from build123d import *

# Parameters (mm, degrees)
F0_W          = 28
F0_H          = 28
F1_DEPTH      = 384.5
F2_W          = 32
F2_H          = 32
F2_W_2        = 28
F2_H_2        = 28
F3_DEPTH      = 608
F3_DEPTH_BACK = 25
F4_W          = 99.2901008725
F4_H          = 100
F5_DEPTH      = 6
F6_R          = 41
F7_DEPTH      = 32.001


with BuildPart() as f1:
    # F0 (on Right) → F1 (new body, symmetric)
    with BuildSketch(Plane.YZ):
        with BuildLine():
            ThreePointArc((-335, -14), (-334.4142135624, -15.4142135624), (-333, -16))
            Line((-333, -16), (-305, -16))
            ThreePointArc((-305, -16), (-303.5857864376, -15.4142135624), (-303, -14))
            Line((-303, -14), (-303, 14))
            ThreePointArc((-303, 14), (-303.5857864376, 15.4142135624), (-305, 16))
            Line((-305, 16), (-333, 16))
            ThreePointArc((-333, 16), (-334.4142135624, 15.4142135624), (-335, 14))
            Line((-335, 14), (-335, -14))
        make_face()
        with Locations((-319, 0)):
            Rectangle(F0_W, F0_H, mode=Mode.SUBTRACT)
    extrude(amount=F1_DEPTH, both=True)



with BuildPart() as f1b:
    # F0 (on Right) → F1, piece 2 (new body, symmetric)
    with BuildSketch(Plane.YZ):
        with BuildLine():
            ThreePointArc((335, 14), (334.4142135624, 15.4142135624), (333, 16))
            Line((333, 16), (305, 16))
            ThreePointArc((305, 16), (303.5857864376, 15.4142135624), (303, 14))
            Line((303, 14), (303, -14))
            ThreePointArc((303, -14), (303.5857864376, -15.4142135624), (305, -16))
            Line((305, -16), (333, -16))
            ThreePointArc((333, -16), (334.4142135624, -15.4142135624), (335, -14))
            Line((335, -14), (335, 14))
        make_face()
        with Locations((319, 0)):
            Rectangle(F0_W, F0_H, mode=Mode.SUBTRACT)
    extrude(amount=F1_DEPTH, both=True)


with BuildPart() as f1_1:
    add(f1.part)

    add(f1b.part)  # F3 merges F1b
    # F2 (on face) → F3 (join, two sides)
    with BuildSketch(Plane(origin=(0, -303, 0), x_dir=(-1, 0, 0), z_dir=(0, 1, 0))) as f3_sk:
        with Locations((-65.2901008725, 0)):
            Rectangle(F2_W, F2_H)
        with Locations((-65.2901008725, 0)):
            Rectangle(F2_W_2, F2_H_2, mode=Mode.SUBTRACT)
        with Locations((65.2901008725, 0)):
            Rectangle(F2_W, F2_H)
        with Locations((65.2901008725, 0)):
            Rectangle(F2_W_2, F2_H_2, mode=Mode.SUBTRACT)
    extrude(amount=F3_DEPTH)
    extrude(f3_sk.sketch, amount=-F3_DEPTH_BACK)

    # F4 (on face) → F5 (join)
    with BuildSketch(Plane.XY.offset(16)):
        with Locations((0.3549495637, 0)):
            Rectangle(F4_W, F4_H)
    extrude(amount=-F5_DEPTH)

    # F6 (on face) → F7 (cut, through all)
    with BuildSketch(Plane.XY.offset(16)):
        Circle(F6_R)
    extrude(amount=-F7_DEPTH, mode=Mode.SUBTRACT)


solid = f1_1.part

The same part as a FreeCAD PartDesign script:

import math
import FreeCAD as App
import Part
import Sketcher

V = App.Vector
Q = App.Units.Quantity

doc = App.newDocument("Part")
body = doc.addObject("PartDesign::Body", "Body")

sketch1 = body.newObject("Sketcher::SketchObject", "Sketch")
sketch1.AttachmentSupport = (doc.getObject("YZ_Plane"), [""])
sketch1.MapMode = "FlatFace"
sketch1.addGeometry([
    Part.ArcOfCircle(Part.Circle(V(-333, -14, 0), V(0, 0, 1), 2), math.radians(180), math.radians(270)),
    Part.LineSegment(V(-333, -16, 0), V(-305, -16, 0)),
    Part.ArcOfCircle(Part.Circle(V(-305, -14, 0), V(0, 0, 1), 2), math.radians(-90), math.radians(0)),
    Part.LineSegment(V(-303, -14, 0), V(-303, 14, 0)),
    Part.ArcOfCircle(Part.Circle(V(-305, 14, 0), V(0, 0, 1), 2), math.radians(0), math.radians(90)),
    Part.LineSegment(V(-305, 16, 0), V(-333, 16, 0)),
    Part.ArcOfCircle(Part.Circle(V(-333, 14, 0), V(0, 0, 1), 2), math.radians(90), math.radians(180)),
    Part.LineSegment(V(-335, 14, 0), V(-335, -14, 0)),
    Part.LineSegment(V(-305, -14, 0), V(-333, -14, 0)),
    Part.LineSegment(V(-333, -14, 0), V(-333, 14, 0)),
    Part.LineSegment(V(-333, 14, 0), V(-305, 14, 0)),
    Part.LineSegment(V(-305, 14, 0), V(-305, -14, 0)),
], False)
sketch1.addConstraint([
    Sketcher.Constraint("Tangent", 0, 2, 1, 1),
    Sketcher.Constraint("Tangent", 1, 2, 2, 1),
    Sketcher.Constraint("Tangent", 2, 2, 3, 1),
    Sketcher.Constraint("Tangent", 3, 2, 4, 1),
    Sketcher.Constraint("Tangent", 4, 2, 5, 1),
    Sketcher.Constraint("Tangent", 5, 2, 6, 1),
    Sketcher.Constraint("Tangent", 6, 2, 7, 1),
    Sketcher.Constraint("Tangent", 7, 2, 0, 1),
    Sketcher.Constraint("Coincident", 8, 2, 9, 1),
    Sketcher.Constraint("Coincident", 9, 2, 10, 1),
    Sketcher.Constraint("Coincident", 10, 2, 11, 1),
    Sketcher.Constraint("Coincident", 11, 2, 8, 1),
    Sketcher.Constraint("Horizontal", 1),
    Sketcher.Constraint("Vertical", 3),
    Sketcher.Constraint("Horizontal", 5),
    Sketcher.Constraint("Vertical", 7),
    Sketcher.Constraint("Horizontal", 8),
    Sketcher.Constraint("Vertical", 9),
    Sketcher.Constraint("Horizontal", 10),
    Sketcher.Constraint("Vertical", 11),
    Sketcher.Constraint("Coincident", 8, 2, 0, 3),
    Sketcher.Constraint("Coincident", 9, 2, 6, 3),
    Sketcher.Constraint("Coincident", 10, 2, 4, 3),
    Sketcher.Constraint("Equal", 0, 2),
    Sketcher.Constraint("Equal", 10, 3),
    Sketcher.Constraint("Radius", 0, Q("2 mm")),
    Sketcher.Constraint("DistanceX", 1, 1, 1, 2, Q("28 mm")),
    Sketcher.Constraint("DistanceX", 0, 3, -1, 1, Q("333 mm")),
    Sketcher.Constraint("DistanceY", 0, 3, -1, 1, Q("14 mm")),
])
pad1 = body.newObject("PartDesign::Pad", "Pad")
pad1.Profile = sketch1
pad1.Length = 769
pad1.Midplane = True
body2 = doc.addObject("PartDesign::Body", "Body001")

sketch2 = body2.newObject("Sketcher::SketchObject", "Sketch001")
sketch2.AttachmentSupport = (doc.getObject("YZ_Plane001"), [""])
sketch2.MapMode = "FlatFace"
sketch2.addGeometry([
    Part.ArcOfCircle(Part.Circle(V(333, 14, 0), V(0, 0, 1), 2), math.radians(0), math.radians(90)),
    Part.LineSegment(V(333, 16, 0), V(305, 16, 0)),
    Part.ArcOfCircle(Part.Circle(V(305, 14, 0), V(0, 0, 1), 2), math.radians(90), math.radians(180)),
    Part.LineSegment(V(303, 14, 0), V(303, -14, 0)),
    Part.ArcOfCircle(Part.Circle(V(305, -14, 0), V(0, 0, 1), 2), math.radians(180), math.radians(270)),
    Part.LineSegment(V(305, -16, 0), V(333, -16, 0)),
    Part.ArcOfCircle(Part.Circle(V(333, -14, 0), V(0, 0, 1), 2), math.radians(-90), math.radians(0)),
    Part.LineSegment(V(335, -14, 0), V(335, 14, 0)),
    Part.LineSegment(V(333, -14, 0), V(305, -14, 0)),
    Part.LineSegment(V(305, -14, 0), V(305, 14, 0)),
    Part.LineSegment(V(305, 14, 0), V(333, 14, 0)),
    Part.LineSegment(V(333, 14, 0), V(333, -14, 0)),
], False)
sketch2.addConstraint([
    Sketcher.Constraint("Tangent", 0, 2, 1, 1),
    Sketcher.Constraint("Tangent", 1, 2, 2, 1),
    Sketcher.Constraint("Tangent", 2, 2, 3, 1),
    Sketcher.Constraint("Tangent", 3, 2, 4, 1),
    Sketcher.Constraint("Tangent", 4, 2, 5, 1),
    Sketcher.Constraint("Tangent", 5, 2, 6, 1),
    Sketcher.Constraint("Tangent", 6, 2, 7, 1),
    Sketcher.Constraint("Tangent", 7, 2, 0, 1),
    Sketcher.Constraint("Coincident", 8, 2, 9, 1),
    Sketcher.Constraint("Coincident", 9, 2, 10, 1),
    Sketcher.Constraint("Coincident", 10, 2, 11, 1),
    Sketcher.Constraint("Coincident", 11, 2, 8, 1),
    Sketcher.Constraint("Horizontal", 1),
    Sketcher.Constraint("Vertical", 3),
    Sketcher.Constraint("Horizontal", 5),
    Sketcher.Constraint("Vertical", 7),
    Sketcher.Constraint("Horizontal", 8),
    Sketcher.Constraint("Vertical", 9),
    Sketcher.Constraint("Horizontal", 10),
    Sketcher.Constraint("Vertical", 11),
    Sketcher.Constraint("Coincident", 8, 2, 4, 3),
    Sketcher.Constraint("Coincident", 9, 2, 2, 3),
    Sketcher.Constraint("Coincident", 10, 2, 0, 3),
    Sketcher.Constraint("Equal", 4, 6),
    Sketcher.Constraint("Equal", 10, 3),
    Sketcher.Constraint("Radius", 0, Q("2 mm")),
    Sketcher.Constraint("DistanceX", 1, 2, 1, 1, Q("28 mm")),
    Sketcher.Constraint("DistanceX", -1, 1, 0, 3, Q("333 mm")),
    Sketcher.Constraint("DistanceY", -1, 1, 0, 3, Q("14 mm")),
])
pad2 = body2.newObject("PartDesign::Pad", "Pad001")
pad2.Profile = sketch2
pad2.Length = 769
pad2.Midplane = True
body.AllowCompound = True
doc.recompute()

boolean = body.newObject("PartDesign::Boolean", "Boolean")
boolean.Type = "Fuse"
boolean.addObjects([body2])

sketch3 = body.newObject("Sketcher::SketchObject", "Sketch002")
sketch3.AttachmentSupport = (doc.getObject("XZ_Plane"), [""])
sketch3.MapMode = "FlatFace"
sketch3.AttachmentOffset = App.Placement(V(0, 0, 303), App.Rotation())
sketch3.addGeometry([
    Part.LineSegment(V(81.290101, 16, 0), V(81.290101, -16, 0)),
    Part.LineSegment(V(81.290101, -16, 0), V(49.290101, -16, 0)),
    Part.LineSegment(V(49.290101, -16, 0), V(49.290101, 16, 0)),
    Part.LineSegment(V(49.290101, 16, 0), V(81.290101, 16, 0)),
    Part.LineSegment(V(51.290101, -14, 0), V(79.290101, -14, 0)),
    Part.LineSegment(V(79.290101, -14, 0), V(79.290101, 14, 0)),
    Part.LineSegment(V(79.290101, 14, 0), V(51.290101, 14, 0)),
    Part.LineSegment(V(51.290101, 14, 0), V(51.290101, -14, 0)),
    Part.LineSegment(V(-49.290101, 16, 0), V(-49.290101, -16, 0)),
    Part.LineSegment(V(-49.290101, -16, 0), V(-81.290101, -16, 0)),
    Part.LineSegment(V(-81.290101, -16, 0), V(-81.290101, 16, 0)),
    Part.LineSegment(V(-81.290101, 16, 0), V(-49.290101, 16, 0)),
    Part.LineSegment(V(-79.290101, -14, 0), V(-51.290101, -14, 0)),
    Part.LineSegment(V(-51.290101, -14, 0), V(-51.290101, 14, 0)),
    Part.LineSegment(V(-51.290101, 14, 0), V(-79.290101, 14, 0)),
    Part.LineSegment(V(-79.290101, 14, 0), V(-79.290101, -14, 0)),
], False)
sketch3.addConstraint([
    Sketcher.Constraint("Coincident", 0, 2, 1, 1),
    Sketcher.Constraint("Coincident", 1, 2, 2, 1),
    Sketcher.Constraint("Coincident", 2, 2, 3, 1),
    Sketcher.Constraint("Coincident", 3, 2, 0, 1),
    Sketcher.Constraint("Coincident", 4, 2, 5, 1),
    Sketcher.Constraint("Coincident", 5, 2, 6, 1),
    Sketcher.Constraint("Coincident", 6, 2, 7, 1),
    Sketcher.Constraint("Coincident", 7, 2, 4, 1),
    Sketcher.Constraint("Coincident", 8, 2, 9, 1),
    Sketcher.Constraint("Coincident", 9, 2, 10, 1),
    Sketcher.Constraint("Coincident", 10, 2, 11, 1),
    Sketcher.Constraint("Coincident", 11, 2, 8, 1),
    Sketcher.Constraint("Coincident", 12, 2, 13, 1),
    Sketcher.Constraint("Coincident", 13, 2, 14, 1),
    Sketcher.Constraint("Coincident", 14, 2, 15, 1),
    Sketcher.Constraint("Coincident", 15, 2, 12, 1),
    Sketcher.Constraint("Vertical", 0),
    Sketcher.Constraint("Horizontal", 1),
    Sketcher.Constraint("Vertical", 2),
    Sketcher.Constraint("Horizontal", 3),
    Sketcher.Constraint("Horizontal", 4),
    Sketcher.Constraint("Vertical", 5),
    Sketcher.Constraint("Horizontal", 6),
    Sketcher.Constraint("Vertical", 7),
    Sketcher.Constraint("Vertical", 8),
    Sketcher.Constraint("Horizontal", 9),
    Sketcher.Constraint("Vertical", 10),
    Sketcher.Constraint("Horizontal", 11),
    Sketcher.Constraint("Horizontal", 12),
    Sketcher.Constraint("Vertical", 13),
    Sketcher.Constraint("Horizontal", 14),
    Sketcher.Constraint("Vertical", 15),
    Sketcher.Constraint("Symmetric", 2, 2, 8, 2, -1, 1),
    Sketcher.Constraint("Symmetric", 0, 2, 10, 2, -1, 1),
    Sketcher.Constraint("Symmetric", 6, 2, 12, 2, -1, 1),
    Sketcher.Constraint("Symmetric", 4, 2, 14, 2, -1, 1),
    Sketcher.Constraint("Horizontal", 1, 2, 8, 2),
    Sketcher.Constraint("Horizontal", 7, 2, 12, 2),
    Sketcher.Constraint("Equal", 11, 0),
    Sketcher.Constraint("Equal", 14, 5),
    Sketcher.Constraint("DistanceX", 1, 2, 1, 1, Q("32 mm")),
    Sketcher.Constraint("DistanceX", 4, 1, 4, 2, Q("28 mm")),
    Sketcher.Constraint("DistanceX", 4, 2, 0, 2, Q("2 mm")),
    Sketcher.Constraint("DistanceX", -1, 1, 0, 2, Q("81.290101 mm")),
])
pad3 = body.newObject("PartDesign::Pad", "Pad002")
pad3.Profile = sketch3
pad3.Type = "TwoLengths"
pad3.Length = 608
pad3.Length2 = 25
pad3.Reversed = True

sketch4 = body.newObject("Sketcher::SketchObject", "Sketch003")
sketch4.AttachmentSupport = (doc.getObject("XY_Plane"), [""])
sketch4.MapMode = "FlatFace"
sketch4.AttachmentOffset = App.Placement(V(0, 0, 16), App.Rotation())
sketch4.addGeometry([
    Part.LineSegment(V(-49.290101, 50, 0), V(-49.290101, -50, 0)),
    Part.LineSegment(V(-49.290101, -50, 0), V(50, -50, 0)),
    Part.LineSegment(V(50, -50, 0), V(50, 50, 0)),
    Part.LineSegment(V(50, 50, 0), V(-49.290101, 50, 0)),
], False)
sketch4.addConstraint([
    Sketcher.Constraint("Coincident", 0, 2, 1, 1),
    Sketcher.Constraint("Coincident", 1, 2, 2, 1),
    Sketcher.Constraint("Coincident", 2, 2, 3, 1),
    Sketcher.Constraint("Coincident", 3, 2, 0, 1),
    Sketcher.Constraint("Vertical", 0),
    Sketcher.Constraint("Horizontal", 1),
    Sketcher.Constraint("Vertical", 2),
    Sketcher.Constraint("Horizontal", 3),
    Sketcher.Constraint("DistanceY", 0, 2, 0, 1, Q("100 mm")),
    Sketcher.Constraint("DistanceY", 0, 2, -1, 1, Q("50 mm")),
    Sketcher.Constraint("DistanceX", -1, 1, 1, 2, Q("50 mm")),
    Sketcher.Constraint("DistanceX", 1, 1, 1, 2, Q("99.290101 mm")),
])
pad4 = body.newObject("PartDesign::Pad", "Pad003")
pad4.Profile = sketch4
pad4.Length = 6
pad4.Reversed = True

sketch5 = body.newObject("Sketcher::SketchObject", "Sketch004")
sketch5.AttachmentSupport = (doc.getObject("XY_Plane"), [""])
sketch5.MapMode = "FlatFace"
sketch5.AttachmentOffset = App.Placement(V(0, 0, 16), App.Rotation())
sketch5.addGeometry(Part.Circle(V(0, 0, 0), V(0, 0, 1), 41), False)
sketch5.addConstraint([
    Sketcher.Constraint("Coincident", 0, 3, -1, 1),
    Sketcher.Constraint("Diameter", 0, Q("82 mm")),
])
pocket1 = body.newObject("PartDesign::Pocket", "Pocket")
pocket1.Profile = sketch5
pocket1.Type = "ThroughAll"

doc.recompute()
